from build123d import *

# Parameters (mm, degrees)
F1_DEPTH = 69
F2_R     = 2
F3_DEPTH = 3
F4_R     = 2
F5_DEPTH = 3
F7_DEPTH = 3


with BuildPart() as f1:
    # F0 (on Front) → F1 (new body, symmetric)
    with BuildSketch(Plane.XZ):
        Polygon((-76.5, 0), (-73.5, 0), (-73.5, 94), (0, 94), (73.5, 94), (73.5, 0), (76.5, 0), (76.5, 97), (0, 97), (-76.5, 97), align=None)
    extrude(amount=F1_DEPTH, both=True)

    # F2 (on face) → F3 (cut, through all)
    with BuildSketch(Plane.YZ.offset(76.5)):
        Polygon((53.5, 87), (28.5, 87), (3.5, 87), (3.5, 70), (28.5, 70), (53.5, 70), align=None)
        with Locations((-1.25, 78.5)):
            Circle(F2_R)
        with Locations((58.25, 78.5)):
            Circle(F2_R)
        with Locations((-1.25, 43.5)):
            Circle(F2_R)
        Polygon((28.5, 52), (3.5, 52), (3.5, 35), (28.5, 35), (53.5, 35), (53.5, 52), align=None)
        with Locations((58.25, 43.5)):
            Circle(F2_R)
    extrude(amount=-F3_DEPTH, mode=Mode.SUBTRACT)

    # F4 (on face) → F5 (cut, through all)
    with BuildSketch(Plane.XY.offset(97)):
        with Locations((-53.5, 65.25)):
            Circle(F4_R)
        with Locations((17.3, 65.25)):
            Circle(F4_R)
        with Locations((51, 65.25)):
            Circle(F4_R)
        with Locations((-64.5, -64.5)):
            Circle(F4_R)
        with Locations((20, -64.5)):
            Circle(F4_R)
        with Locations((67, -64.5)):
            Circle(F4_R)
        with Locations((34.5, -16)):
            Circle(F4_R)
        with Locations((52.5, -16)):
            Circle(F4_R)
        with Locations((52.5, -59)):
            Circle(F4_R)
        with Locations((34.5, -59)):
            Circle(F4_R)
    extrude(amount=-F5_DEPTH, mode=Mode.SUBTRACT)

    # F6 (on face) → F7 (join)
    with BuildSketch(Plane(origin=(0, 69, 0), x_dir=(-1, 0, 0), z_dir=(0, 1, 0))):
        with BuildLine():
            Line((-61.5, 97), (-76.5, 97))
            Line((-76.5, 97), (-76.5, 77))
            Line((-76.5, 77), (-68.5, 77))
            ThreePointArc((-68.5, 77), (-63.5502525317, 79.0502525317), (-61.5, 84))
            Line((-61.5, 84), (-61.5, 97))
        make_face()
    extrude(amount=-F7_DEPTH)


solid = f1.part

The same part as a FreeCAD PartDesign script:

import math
import FreeCAD as App
import Part
import Sketcher
from FreeCAD import Vector
Q = App.Units.Quantity

doc = App.newDocument("Part")
body = doc.addObject("PartDesign::Body", "Body")

sketch1 = doc.addObject("Sketcher::SketchObject", "Sketch")
body.addObject(sketch1)
sketch1.AttachmentSupport = (doc.XZ_Plane, [""])
sketch1.MapMode = "FlatFace"
sketch1.addGeometry([
    Part.LineSegment(Vector(-76.5, 0, 0), Vector(-73.5, 0, 0)),
    Part.LineSegment(Vector(-73.5, 0, 0), Vector(-73.5, 94, 0)),
    Part.LineSegment(Vector(-73.5, 94, 0), Vector(73.5, 94, 0)),
    Part.LineSegment(Vector(73.5, 94, 0), Vector(73.5, 0, 0)),
    Part.LineSegment(Vector(73.5, 0, 0), Vector(76.5, 0, 0)),
    Part.LineSegment(Vector(76.5, 0, 0), Vector(76.5, 97, 0)),
    Part.LineSegment(Vector(76.5, 97, 0), Vector(-76.5, 97, 0)),
    Part.LineSegment(Vector(-76.5, 97, 0), Vector(-76.5, 0, 0)),
], False)
sketch1.addConstraint([
    Sketcher.Constraint("Coincident", 0, 2, 1, 1),
    Sketcher.Constraint("Coincident", 1, 2, 2, 1),
    Sketcher.Constraint("Coincident", 2, 2, 3, 1),
    Sketcher.Constraint("Coincident", 3, 2, 4, 1),
    Sketcher.Constraint("Coincident", 4, 2, 5, 1),
    Sketcher.Constraint("Coincident", 5, 2, 6, 1),
    Sketcher.Constraint("Coincident", 6, 2, 7, 1),
    Sketcher.Constraint("Coincident", 7, 2, 0, 1),
    Sketcher.Constraint("Horizontal", 0),
    Sketcher.Constraint("Vertical", 1),
    Sketcher.Constraint("Horizontal", 2),
    Sketcher.Constraint("Vertical", 3),
    Sketcher.Constraint("Horizontal", 4),
    Sketcher.Constraint("Vertical", 5),
    Sketcher.Constraint("Horizontal", 6),
    Sketcher.Constraint("Vertical", 7),
    Sketcher.Constraint("Symmetric", 0, 2, 3, 2, -1, 1),
    Sketcher.Constraint("Symmetric", 4, 2, 7, 2, -2),
    Sketcher.Constraint("DistanceX", 0, 1, 0, 2, Q("3 mm")),
    Sketcher.Constraint("DistanceX", 2, 1, 2, 2, Q("147 mm")),
    Sketcher.Constraint("DistanceY", 1, 1, 1, 2, Q("94 mm")),
    Sketcher.Constraint("DistanceY", 5, 1, 5, 2, Q("97 mm")),
])
pad1 = doc.addObject("PartDesign::Pad", "Pad")
body.addObject(pad1)
pad1.Profile = sketch1
pad1.Length = 138
pad1.Midplane = True

sketch2 = doc.addObject("Sketcher::SketchObject", "Sketch001")
body.addObject(sketch2)
sketch2.AttachmentSupport = (doc.YZ_Plane, [""])
sketch2.MapMode = "FlatFace"
sketch2.AttachmentOffset = App.Placement(Vector(0, 0, 76.5), App.Rotation())
sketch2.addGeometry([
    Part.LineSegment(Vector(53.5, 87, 0), Vector(3.5, 87, 0)),
    Part.LineSegment(Vector(3.5, 87, 0), Vector(3.5, 70, 0)),
    Part.LineSegment(Vector(3.5, 70, 0), Vector(53.5, 70, 0)),
    Part.LineSegment(Vector(53.5, 70, 0), Vector(53.5, 87, 0)),
    Part.Circle(Vector(-1.2, 78.5, 0), Vector(0, 0, 1), 2),
    Part.Circle(Vector(58.2, 78.5, 0), Vector(0, 0, 1), 2),
    Part.Circle(Vector(-1.2, 43.5, 0), Vector(0, 0, 1), 2),
    Part.LineSegment(Vector(3.5, 52, 0), Vector(3.5, 35, 0)),
    Part.LineSegment(Vector(3.5, 35, 0), Vector(53.5, 35, 0)),
    Part.LineSegment(Vector(53.5, 35, 0), Vector(53.5, 52, 0)),
    Part.LineSegment(Vector(53.5, 52, 0), Vector(3.5, 52, 0)),
    Part.Circle(Vector(58.2, 43.5, 0), Vector(0, 0, 1), 2),
], False)
sketch2.addConstraint([
    Sketcher.Constraint("Coincident", 0, 2, 1, 1),
    Sketcher.Constraint("Coincident", 1, 2, 2, 1),
    Sketcher.Constraint("Coincident", 2, 2, 3, 1),
    Sketcher.Constraint("Coincident", 3, 2, 0, 1),
    Sketcher.Constraint("Coincident", 7, 2, 8, 1),
    Sketcher.Constraint("Coincident", 8, 2, 9, 1),
    Sketcher.Constraint("Coincident", 9, 2, 10, 1),
    Sketcher.Constraint("Coincident", 10, 2, 7, 1),
    Sketcher.Constraint("Horizontal", 0),
    Sketcher.Constraint("Vertical", 1),
    Sketcher.Constraint("Horizontal", 2),
    Sketcher.Constraint("Vertical", 3),
    Sketcher.Constraint("Vertical", 7),
    Sketcher.Constraint("Horizontal", 8),
    Sketcher.Constraint("Vertical", 9),
    Sketcher.Constraint("Horizontal", 10),
    Sketcher.Constraint("Equal", 4, 5),
    Sketcher.Constraint("Equal", 5, 6),
    Sketcher.Constraint("Equal", 6, 11),
    Sketcher.Constraint("Horizontal", 4, 3, 5, 3),
    Sketcher.Constraint("Horizontal", 6, 3, 11, 3),
    Sketcher.Constraint("Vertical", 4, 3, 6, 3),
    Sketcher.Constraint("Vertical", 5, 3, 11, 3),
    Sketcher.Constraint("Vertical", 1, 2, 7, 2),
    Sketcher.Constraint("Vertical", 3, 2, 8, 2),
    Sketcher.Constraint("Equal", 3, 7),
    Sketcher.Constraint("Diameter", 4, Q("4 mm")),
    Sketcher.Constraint("DistanceX", 0, 2, 0, 1, Q("50 mm")),
    Sketcher.Constraint("DistanceY", 1, 2, 1, 1, Q("17 mm")),
    Sketcher.Constraint("DistanceY", -1, 1, 0, 2, Q("87 mm")),
    Sketcher.Constraint("DistanceY", -1, 1, 7, 2, Q("35 mm")),
    Sketcher.Constraint("DistanceY", 6, 3, 4, 3, Q("35 mm")),
    Sketcher.Constraint("DistanceY", -1, 1, 4, 3, Q("78.5 mm")),
    Sketcher.Constraint("DistanceX", -1, 1, 0, 2, Q("3.5 mm")),
    Sketcher.Constraint("DistanceX", 4, 3, 5, 3, Q("59.5 mm")),
    Sketcher.Constraint("DistanceX", 4, 3, -1, 1, Q("1.25 mm")),
])
pocket1 = doc.addObject("PartDesign::Pocket", "Pocket")
body.addObject(pocket1)
pocket1.Profile = sketch2
pocket1.Length = 3

sketch3 = doc.addObject("Sketcher::SketchObject", "Sketch002")
body.addObject(sketch3)
sketch3.AttachmentSupport = (doc.XY_Plane, [""])
sketch3.MapMode = "FlatFace"
sketch3.AttachmentOffset = App.Placement(Vector(0, 0, 97), App.Rotation())
sketch3.addGeometry([
    Part.Circle(Vector(-53.5, 65.2, 0), Vector(0, 0, 1), 2),
    Part.Circle(Vector(17.3, 65.2, 0), Vector(0, 0, 1), 2),
    Part.Circle(Vector(51, 65.2, 0), Vector(0, 0, 1), 2),
    Part.Circle(Vector(-64.5, -64.5, 0), Vector(0, 0, 1), 2),
    Part.Circle(Vector(20, -64.5, 0), Vector(0, 0, 1), 2),
    Part.Circle(Vector(67, -64.5, 0), Vector(0, 0, 1), 2),
    Part.Circle(Vector(34.5, -16, 0), Vector(0, 0, 1), 2),
    Part.Circle(Vector(52.5, -16, 0), Vector(0, 0, 1), 2),
    Part.Circle(Vector(52.5, -59, 0), Vector(0, 0, 1), 2),
    Part.Circle(Vector(34.5, -59, 0), Vector(0, 0, 1), 2),
], False)
sketch3.addConstraint([
    Sketcher.Constraint("Equal", 0, 1),
    Sketcher.Constraint("Equal", 1, 2),
    Sketcher.Constraint("Equal", 2, 3),
    Sketcher.Constraint("Equal", 3, 4),
    Sketcher.Constraint("Equal", 4, 5),
    Sketcher.Constraint("Equal", 5, 6),
    Sketcher.Constraint("Equal", 6, 7),
    Sketcher.Constraint("Equal", 7, 8),
    Sketcher.Constraint("Equal", 8, 9),
    Sketcher.Constraint("Horizontal", 0, 3, 1, 3),
    Sketcher.Constraint("Horizontal", 1, 3, 2, 3),
    Sketcher.Constraint("Horizontal", 3, 3, 4, 3),
    Sketcher.Constraint("Horizontal", 4, 3, 5, 3),
    Sketcher.Constraint("Horizontal", 6, 3, 7, 3),
    Sketcher.Constraint("Horizontal", 8, 3, 9, 3),
    Sketcher.Constraint("Vertical", 7, 3, 8, 3),
    Sketcher.Constraint("Vertical", 6, 3, 9, 3),
    Sketcher.Constraint("Diameter", 0, Q("4 mm")),
    Sketcher.Constraint("DistanceX", -1, 1, 2, 3, Q("51 mm")),
    Sketcher.Constraint("DistanceX", -1, 1, 4, 3, Q("20 mm")),
    Sketcher.Constraint("DistanceX", -1, 1, 5, 3, Q("67 mm")),
    Sketcher.Constraint("DistanceY", 6, 3, -1, 1, Q("16 mm")),
    Sketcher.Constraint("DistanceY", 8, 3, -1, 1, Q("59 mm")),
    Sketcher.Constraint("DistanceX", 3, 3, 0, 3, Q("11 mm")),
    Sketcher.Constraint("DistanceX", 3, 3, 6, 3, Q("99 mm")),
    Sketcher.Constraint("DistanceX", 6, 3, 7, 3, Q("18 mm")),
    Sketcher.Constraint("DistanceX", 0, 3, -1, 1, Q("53.5 mm")),
    Sketcher.Constraint("DistanceX", -1, 1, 1, 3, Q("17.3 mm")),
    Sketcher.Constraint("DistanceY", 3, 3, -1, 1, Q("64.5 mm")),
    Sketcher.Constraint("DistanceY", -1, 1, 0, 3, Q("65.25 mm")),
])
pocket2 = doc.addObject("PartDesign::Pocket", "Pocket001")
body.addObject(pocket2)
pocket2.Profile = sketch3
pocket2.Type = "ThroughAll"

sketch4 = doc.addObject("Sketcher::SketchObject", "Sketch003")
body.addObject(sketch4)
sketch4.AttachmentSupport = (doc.XZ_Plane, [""])
sketch4.MapMode = "FlatFace"
sketch4.AttachmentOffset = App.Placement(Vector(0, 0, -69), App.Rotation())
sketch4.addGeometry([
    Part.LineSegment(Vector(62, 97, 0), Vector(76, 97, 0)),
    Part.LineSegment(Vector(76, 97, 0), Vector(76, 77, 0)),
    Part.LineSegment(Vector(76, 77, 0), Vector(68, 77, 0)),
    Part.ArcOfCircle(Part.Circle(Vector(68, 84, 0), Vector(0, 0, 1), 7), math.radians(180), math.radians(270)),
    Part.LineSegment(Vector(62, 84, 0), Vector(62, 97, 0)),
], False)
sketch4.addConstraint([
    Sketcher.Constraint("Coincident", 0, 2, 1, 1),
    Sketcher.Constraint("Coincident", 1, 2, 2, 1),
    Sketcher.Constraint("Tangent", 2, 2, 3, 2),
    Sketcher.Constraint("Tangent", 3, 1, 4, 1),
    Sketcher.Constraint("Coincident", 4, 2, 0, 1),
    Sketcher.Constraint("Horizontal", 0),
    Sketcher.Constraint("Vertical", 1),
    Sketcher.Constraint("Horizontal", 2),
    Sketcher.Constraint("Vertical", 4),
    Sketcher.Constraint("Radius", 3, Q("7 mm")),
    Sketcher.Constraint("DistanceX", 0, 1, 0, 2, Q("15 mm")),
    Sketcher.Constraint("DistanceY", 1, 2, 1, 1, Q("20 mm")),
    Sketcher.Constraint("DistanceY", -1, 1, 3, 3, Q("84 mm")),
    Sketcher.Constraint("DistanceX", -1, 1, 3, 3, Q("68.5 mm")),
])
pad2 = doc.addObject("PartDesign::Pad", "Pad001")
body.addObject(pad2)
pad2.Profile = sketch4
pad2.Length = 3

doc.recompute()
